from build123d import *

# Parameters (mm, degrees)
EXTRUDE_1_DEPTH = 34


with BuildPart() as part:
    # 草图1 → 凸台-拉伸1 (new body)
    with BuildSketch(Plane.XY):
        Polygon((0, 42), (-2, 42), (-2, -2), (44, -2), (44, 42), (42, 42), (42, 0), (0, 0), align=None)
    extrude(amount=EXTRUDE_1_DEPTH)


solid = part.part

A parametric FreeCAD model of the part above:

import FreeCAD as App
import Part
import Sketcher

V = App.Vector
Q = App.Units.Quantity


def add_polygon(sketch, points):
    """Adds a closed chain of lines whose ends are joined by coincident constraints."""
    first, n = sketch.GeometryCount, len(points)
    for a, b in zip(points, points[1:] + points[:1]):
        sketch.addGeometry(Part.LineSegment(App.Vector(*a, 0), App.Vector(*b, 0)), False)
    for i in range(n):
        sketch.addConstraint(Sketcher.Constraint("Coincident", first + i, 2, first + (i + 1) % n, 1))

doc = App.newDocument("Part")
body = doc.addObject("PartDesign::Body", "Body")

# Sketch on XY plane
sketch1 = body.newObject("Sketcher::SketchObject", "Sketch")
sketch1.AttachmentSupport = (doc.getObject("XY_Plane"), [""])
sketch1.MapMode = "FlatFace"
add_polygon(sketch1, [(0, 42), (-2, 42), (-2, -2), (44, -2), (44, 42), (42, 42), (42, 0), (0, 0)])  # lines 0-7
sketch1.addConstraint([
    Sketcher.Constraint("Horizontal", 0),
    Sketcher.Constraint("Vertical", 1),
    Sketcher.Constraint("Horizontal", 2),
    Sketcher.Constraint("Vertical", 3),
    Sketcher.Constraint("Horizontal", 4),
    Sketcher.Constraint("Vertical", 5),
    Sketcher.Constraint("Horizontal", 6),
    Sketcher.Constraint("Vertical", 7),
    Sketcher.Constraint("Coincident", 6, 2, -1, 1),
    Sketcher.Constraint("Horizontal", 0, 2, 3, 2),
    Sketcher.Constraint("Equal", 0, 4),
    Sketcher.Constraint("Equal", 6, 5),
    Sketcher.Constraint("DistanceX", 0, 2, 0, 1, Q("2 mm")),
    Sketcher.Constraint("DistanceX", 2, 1, 2, 2, Q("46 mm")),
    Sketcher.Constraint("DistanceY", 1, 2, 1, 1, Q("44 mm")),
])
pad1 = body.newObject("PartDesign::Pad", "Pad")
pad1.Profile = sketch1
pad1.Length = 34

doc.recompute()
